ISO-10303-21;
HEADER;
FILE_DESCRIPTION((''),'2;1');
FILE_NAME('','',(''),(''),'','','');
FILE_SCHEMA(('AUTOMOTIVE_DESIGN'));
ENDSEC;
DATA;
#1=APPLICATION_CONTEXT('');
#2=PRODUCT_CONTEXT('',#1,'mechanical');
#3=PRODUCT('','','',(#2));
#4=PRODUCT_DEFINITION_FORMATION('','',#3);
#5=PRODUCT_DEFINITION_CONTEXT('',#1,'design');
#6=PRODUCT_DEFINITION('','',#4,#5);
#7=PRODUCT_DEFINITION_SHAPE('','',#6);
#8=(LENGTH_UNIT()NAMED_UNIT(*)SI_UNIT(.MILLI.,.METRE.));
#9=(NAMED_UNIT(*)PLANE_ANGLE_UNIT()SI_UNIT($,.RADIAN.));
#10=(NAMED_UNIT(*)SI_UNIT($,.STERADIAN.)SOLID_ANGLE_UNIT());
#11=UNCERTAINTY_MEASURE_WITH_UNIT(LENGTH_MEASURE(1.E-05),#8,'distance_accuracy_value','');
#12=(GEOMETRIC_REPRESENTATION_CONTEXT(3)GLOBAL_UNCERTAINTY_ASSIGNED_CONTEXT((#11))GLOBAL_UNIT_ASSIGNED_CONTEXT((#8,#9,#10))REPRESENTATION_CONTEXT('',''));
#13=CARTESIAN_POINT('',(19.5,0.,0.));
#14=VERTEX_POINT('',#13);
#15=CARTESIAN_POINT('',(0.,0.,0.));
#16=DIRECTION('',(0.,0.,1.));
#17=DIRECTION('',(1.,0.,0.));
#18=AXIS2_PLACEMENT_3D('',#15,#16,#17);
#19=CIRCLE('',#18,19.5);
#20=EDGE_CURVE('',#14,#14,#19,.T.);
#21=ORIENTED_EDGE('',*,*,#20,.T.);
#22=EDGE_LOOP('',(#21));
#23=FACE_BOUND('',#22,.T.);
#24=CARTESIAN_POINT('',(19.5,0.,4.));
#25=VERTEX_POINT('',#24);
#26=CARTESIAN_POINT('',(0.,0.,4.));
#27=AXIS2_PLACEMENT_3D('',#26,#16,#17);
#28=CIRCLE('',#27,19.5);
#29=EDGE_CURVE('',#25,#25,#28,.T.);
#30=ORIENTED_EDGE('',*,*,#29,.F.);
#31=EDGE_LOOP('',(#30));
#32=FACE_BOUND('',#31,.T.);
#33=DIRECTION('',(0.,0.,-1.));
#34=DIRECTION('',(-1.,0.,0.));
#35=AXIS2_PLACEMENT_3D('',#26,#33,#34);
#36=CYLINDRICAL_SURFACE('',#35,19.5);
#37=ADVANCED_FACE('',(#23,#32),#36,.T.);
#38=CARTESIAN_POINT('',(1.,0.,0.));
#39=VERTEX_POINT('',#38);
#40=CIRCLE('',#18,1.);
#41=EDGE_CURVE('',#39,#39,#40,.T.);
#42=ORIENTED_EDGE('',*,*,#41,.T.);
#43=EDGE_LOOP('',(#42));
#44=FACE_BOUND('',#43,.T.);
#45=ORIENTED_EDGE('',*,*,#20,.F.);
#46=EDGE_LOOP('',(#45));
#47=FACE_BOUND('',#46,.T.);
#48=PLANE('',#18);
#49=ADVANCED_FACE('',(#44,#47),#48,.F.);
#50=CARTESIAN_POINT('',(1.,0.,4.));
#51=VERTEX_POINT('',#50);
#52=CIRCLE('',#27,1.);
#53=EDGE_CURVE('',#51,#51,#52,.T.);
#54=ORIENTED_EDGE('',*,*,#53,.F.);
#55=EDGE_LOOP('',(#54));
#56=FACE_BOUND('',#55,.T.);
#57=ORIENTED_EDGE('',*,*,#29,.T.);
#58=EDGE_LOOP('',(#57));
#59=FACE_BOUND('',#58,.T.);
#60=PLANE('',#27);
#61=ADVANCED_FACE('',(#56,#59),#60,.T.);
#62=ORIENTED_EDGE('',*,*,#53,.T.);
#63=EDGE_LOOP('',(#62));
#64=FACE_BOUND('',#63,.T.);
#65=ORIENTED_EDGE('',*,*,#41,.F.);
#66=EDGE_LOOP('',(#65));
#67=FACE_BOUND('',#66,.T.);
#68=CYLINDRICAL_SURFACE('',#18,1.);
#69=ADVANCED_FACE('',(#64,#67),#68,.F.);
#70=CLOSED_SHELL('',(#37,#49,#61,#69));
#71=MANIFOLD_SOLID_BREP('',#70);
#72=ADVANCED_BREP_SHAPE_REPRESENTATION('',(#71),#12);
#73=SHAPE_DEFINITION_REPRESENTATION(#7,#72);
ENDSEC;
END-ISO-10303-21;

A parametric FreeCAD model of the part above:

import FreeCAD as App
import Part
import Sketcher
Q = App.Units.Quantity

doc = App.newDocument("Part")
params = doc.addObject("Spreadsheet::Sheet", "Params")
for row, (alias, value) in enumerate([
    ("sketch1_diameter", "39 mm"),
    ("pad1_length", "4 mm"),
    ("sketch2_diameter", "2 mm"),
], start=1):
    params.set(f"A{row}", alias)
    params.set(f"B{row}", "=" + value)
    params.setAlias(f"B{row}", alias)

body = doc.addObject("PartDesign::Body", "Body")

sketch1 = body.newObject("Sketcher::SketchObject", "Sketch")
sketch1.AttachmentSupport = (doc.getObject("XY_Plane"), [""])
sketch1.MapMode = "FlatFace"
sketch1.addGeometry(Part.Circle(App.Vector(0, 0, 0), App.Vector(0, 0, 1), 19.5), False)
sketch1.addConstraint([
    Sketcher.Constraint("Coincident", 0, 3, -1, 1),
    Sketcher.Constraint("Diameter", 0, Q("39 mm")),
])
sketch1.setExpression("Constraints[1]", "Params.sketch1_diameter")
pad1 = body.newObject("PartDesign::Pad", "Pad")
pad1.Profile = sketch1
pad1.setExpression("Length", "Params.pad1_length")

sketch2 = body.newObject("Sketcher::SketchObject", "Sketch001")
sketch2.AttachmentSupport = (doc.getObject("XY_Plane"), [""])
sketch2.MapMode = "FlatFace"
sketch2.AttachmentOffset = App.Placement(App.Vector(0, 0, 4), App.Rotation())
sketch2.addGeometry(Part.Circle(App.Vector(0, 0, 0), App.Vector(0, 0, 1), 1), False)
sketch2.addConstraint([
    Sketcher.Constraint("Coincident", 0, 3, -1, 1),
    Sketcher.Constraint("Diameter", 0, Q("2 mm")),
])
sketch2.setExpression("Constraints[1]", "Params.sketch2_diameter")
pocket1 = body.newObject("PartDesign::Pocket", "Pocket")
pocket1.Profile = sketch2
pocket1.Type = "ThroughAll"

doc.recompute()
